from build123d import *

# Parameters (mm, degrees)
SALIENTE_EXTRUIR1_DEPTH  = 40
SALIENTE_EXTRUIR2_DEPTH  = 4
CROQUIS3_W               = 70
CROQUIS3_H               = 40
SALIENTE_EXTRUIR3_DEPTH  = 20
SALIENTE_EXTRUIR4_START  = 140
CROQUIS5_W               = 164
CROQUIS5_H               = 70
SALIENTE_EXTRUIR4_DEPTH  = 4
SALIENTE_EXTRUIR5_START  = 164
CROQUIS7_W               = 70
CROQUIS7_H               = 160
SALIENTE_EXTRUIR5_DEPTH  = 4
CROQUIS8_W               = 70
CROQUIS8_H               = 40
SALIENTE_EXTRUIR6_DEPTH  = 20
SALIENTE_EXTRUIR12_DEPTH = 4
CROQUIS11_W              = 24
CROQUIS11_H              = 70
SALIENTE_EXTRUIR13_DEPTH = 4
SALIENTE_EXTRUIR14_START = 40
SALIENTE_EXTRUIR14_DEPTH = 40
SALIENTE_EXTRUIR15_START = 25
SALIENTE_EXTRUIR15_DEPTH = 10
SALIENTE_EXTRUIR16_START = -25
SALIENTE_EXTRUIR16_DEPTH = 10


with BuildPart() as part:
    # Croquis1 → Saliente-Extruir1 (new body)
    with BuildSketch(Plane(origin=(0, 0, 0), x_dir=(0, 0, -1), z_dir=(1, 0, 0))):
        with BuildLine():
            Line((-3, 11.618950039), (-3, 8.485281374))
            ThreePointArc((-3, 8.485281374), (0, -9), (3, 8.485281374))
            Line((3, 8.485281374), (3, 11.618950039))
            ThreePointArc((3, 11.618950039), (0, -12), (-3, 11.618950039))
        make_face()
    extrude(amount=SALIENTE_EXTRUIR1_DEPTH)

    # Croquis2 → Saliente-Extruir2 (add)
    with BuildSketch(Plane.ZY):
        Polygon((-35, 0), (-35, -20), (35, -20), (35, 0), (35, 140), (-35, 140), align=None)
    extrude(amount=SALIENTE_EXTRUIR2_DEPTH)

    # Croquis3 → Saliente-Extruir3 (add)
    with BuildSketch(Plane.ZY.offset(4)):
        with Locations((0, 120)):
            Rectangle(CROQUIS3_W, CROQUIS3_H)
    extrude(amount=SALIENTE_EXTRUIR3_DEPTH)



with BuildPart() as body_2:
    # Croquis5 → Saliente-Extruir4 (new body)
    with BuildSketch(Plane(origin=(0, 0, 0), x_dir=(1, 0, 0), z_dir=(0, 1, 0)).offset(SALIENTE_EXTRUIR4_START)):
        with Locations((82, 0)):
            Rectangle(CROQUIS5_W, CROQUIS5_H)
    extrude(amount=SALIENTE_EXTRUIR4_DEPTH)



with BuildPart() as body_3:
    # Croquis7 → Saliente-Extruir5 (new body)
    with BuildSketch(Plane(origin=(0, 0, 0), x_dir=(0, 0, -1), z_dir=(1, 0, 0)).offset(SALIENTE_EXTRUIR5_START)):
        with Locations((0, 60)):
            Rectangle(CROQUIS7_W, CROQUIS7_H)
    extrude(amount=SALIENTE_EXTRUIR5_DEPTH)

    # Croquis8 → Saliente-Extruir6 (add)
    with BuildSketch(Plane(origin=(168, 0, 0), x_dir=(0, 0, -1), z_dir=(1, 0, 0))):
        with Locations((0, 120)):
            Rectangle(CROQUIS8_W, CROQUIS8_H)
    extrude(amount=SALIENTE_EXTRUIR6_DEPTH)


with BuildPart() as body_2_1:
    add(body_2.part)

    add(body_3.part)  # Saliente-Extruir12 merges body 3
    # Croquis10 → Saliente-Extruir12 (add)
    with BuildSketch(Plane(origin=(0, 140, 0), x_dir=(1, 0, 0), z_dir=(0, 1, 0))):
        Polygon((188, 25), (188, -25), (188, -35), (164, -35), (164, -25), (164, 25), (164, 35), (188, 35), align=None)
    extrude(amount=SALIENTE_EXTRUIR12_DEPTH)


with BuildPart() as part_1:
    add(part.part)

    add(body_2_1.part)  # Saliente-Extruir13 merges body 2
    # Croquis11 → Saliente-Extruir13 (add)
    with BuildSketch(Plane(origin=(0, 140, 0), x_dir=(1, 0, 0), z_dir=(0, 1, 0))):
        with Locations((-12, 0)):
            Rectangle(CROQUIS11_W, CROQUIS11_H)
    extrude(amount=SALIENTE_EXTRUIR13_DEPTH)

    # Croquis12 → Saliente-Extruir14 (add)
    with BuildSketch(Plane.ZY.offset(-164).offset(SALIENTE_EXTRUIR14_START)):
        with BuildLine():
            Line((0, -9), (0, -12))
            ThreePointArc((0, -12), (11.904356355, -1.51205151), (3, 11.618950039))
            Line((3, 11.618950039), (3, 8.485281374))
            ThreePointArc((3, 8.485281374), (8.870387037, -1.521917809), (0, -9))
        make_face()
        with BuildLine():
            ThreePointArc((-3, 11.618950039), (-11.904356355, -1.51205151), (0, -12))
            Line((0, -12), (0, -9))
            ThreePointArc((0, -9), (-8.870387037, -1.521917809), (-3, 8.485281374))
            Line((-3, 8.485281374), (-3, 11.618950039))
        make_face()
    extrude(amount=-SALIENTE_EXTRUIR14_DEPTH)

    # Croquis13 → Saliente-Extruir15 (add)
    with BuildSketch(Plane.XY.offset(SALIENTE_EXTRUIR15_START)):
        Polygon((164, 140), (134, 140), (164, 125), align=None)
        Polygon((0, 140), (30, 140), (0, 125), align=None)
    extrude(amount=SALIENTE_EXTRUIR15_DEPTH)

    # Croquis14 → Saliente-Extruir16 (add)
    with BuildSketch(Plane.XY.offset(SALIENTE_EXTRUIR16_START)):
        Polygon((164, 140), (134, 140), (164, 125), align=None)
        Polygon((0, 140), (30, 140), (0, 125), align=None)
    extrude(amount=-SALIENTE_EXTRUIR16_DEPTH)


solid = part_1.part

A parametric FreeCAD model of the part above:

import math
import FreeCAD as App
import Part
import Sketcher

V = App.Vector
Q = App.Units.Quantity

doc = App.newDocument("Part")
body = doc.addObject("PartDesign::Body", "Body")

# Sketch on YZ plane
sketch1 = body.newObject("Sketcher::SketchObject", "Sketch")
sketch1.AttachmentSupport = (doc.getObject("YZ_Plane"), [""])
sketch1.MapMode = "FlatFace"
sketch1.addGeometry([
    Part.LineSegment(V(8.5, 3, 0), V(11.6, 3, 0)),
    Part.ArcOfCircle(Part.Circle(V(0, 0, 0), V(0, 0, 1), 12), math.radians(14), math.radians(346)),
    Part.LineSegment(V(11.6, -3, 0), V(8.5, -3, 0)),
    Part.ArcOfCircle(Part.Circle(V(0, 0, 0), V(0, 0, 1), 9), math.radians(19), math.radians(341)),
], False)
sketch1.addConstraint([
    Sketcher.Constraint("Coincident", 0, 2, 1, 1),
    Sketcher.Constraint("Coincident", 1, 2, 2, 1),
    Sketcher.Constraint("Coincident", 2, 2, 3, 2),
    Sketcher.Constraint("Coincident", 3, 1, 0, 1),
    Sketcher.Constraint("Horizontal", 0),
    Sketcher.Constraint("Horizontal", 2),
    Sketcher.Constraint("Coincident", 1, 3, -1, 1),
    Sketcher.Constraint("Coincident", 3, 3, -1, 1),
    Sketcher.Constraint("Vertical", 0, 2, 1, 2),
    Sketcher.Constraint("Radius", 1, Q("12 mm")),
    Sketcher.Constraint("Radius", 3, Q("9 mm")),
    Sketcher.Constraint("DistanceY", -1, 1, 0, 2, Q("3 mm")),
])
pad1 = body.newObject("PartDesign::Pad", "Pad")
pad1.Profile = sketch1
pad1.Length = 40

# Sketch on YZ plane
sketch2 = body.newObject("Sketcher::SketchObject", "Sketch001")
sketch2.AttachmentSupport = (doc.getObject("YZ_Plane"), [""])
sketch2.MapMode = "FlatFace"
sketch2.addGeometry([
    Part.LineSegment(V(-20, -35, 0), V(-20, 35, 0)),
    Part.LineSegment(V(-20, 35, 0), V(140, 35, 0)),
    Part.LineSegment(V(140, 35, 0), V(140, -35, 0)),
    Part.LineSegment(V(140, -35, 0), V(-20, -35, 0)),
], False)
sketch2.addConstraint([
    Sketcher.Constraint("Coincident", 0, 2, 1, 1),
    Sketcher.Constraint("Coincident", 1, 2, 2, 1),
    Sketcher.Constraint("Coincident", 2, 2, 3, 1),
    Sketcher.Constraint("Coincident", 3, 2, 0, 1),
    Sketcher.Constraint("Vertical", 0),
    Sketcher.Constraint("Horizontal", 1),
    Sketcher.Constraint("Vertical", 2),
    Sketcher.Constraint("Horizontal", 3),
    Sketcher.Constraint("DistanceX", 1, 1, 1, 2, Q("160 mm")),
    Sketcher.Constraint("DistanceY", 0, 1, 0, 2, Q("70 mm")),
    Sketcher.Constraint("DistanceX", 0, 2, -1, 1, Q("20 mm")),
    Sketcher.Constraint("DistanceY", -1, 1, 0, 2, Q("35 mm")),
])
pad2 = body.newObject("PartDesign::Pad", "Pad001")
pad2.Profile = sketch2
pad2.Length = 4
pad2.Reversed = True

# Sketch on YZ plane
sketch3 = body.newObject("Sketcher::SketchObject", "Sketch002")
sketch3.AttachmentSupport = (doc.getObject("YZ_Plane"), [""])
sketch3.MapMode = "FlatFace"
sketch3.AttachmentOffset = App.Placement(V(0, 0, -4), App.Rotation())
sketch3.addGeometry([
    Part.LineSegment(V(140, -35, 0), V(100, -35, 0)),
    Part.LineSegment(V(100, -35, 0), V(100, 35, 0)),
    Part.LineSegment(V(100, 35, 0), V(140, 35, 0)),
    Part.LineSegment(V(140, 35, 0), V(140, -35, 0)),
], False)
sketch3.addConstraint([
    Sketcher.Constraint("Coincident", 0, 2, 1, 1),
    Sketcher.Constraint("Coincident", 1, 2, 2, 1),
    Sketcher.Constraint("Coincident", 2, 2, 3, 1),
    Sketcher.Constraint("Coincident", 3, 2, 0, 1),
    Sketcher.Constraint("Horizontal", 0),
    Sketcher.Constraint("Vertical", 1),
    Sketcher.Constraint("Horizontal", 2),
    Sketcher.Constraint("Vertical", 3),
    Sketcher.Constraint("DistanceX", 0, 2, 0, 1, Q("40 mm")),
    Sketcher.Constraint("DistanceY", 1, 1, 1, 2, Q("70 mm")),
    Sketcher.Constraint("DistanceX", -1, 1, 0, 2, Q("100 mm")),
    Sketcher.Constraint("DistanceY", 0, 2, -1, 1, Q("35 mm")),
])
pad3 = body.newObject("PartDesign::Pad", "Pad002")
pad3.Profile = sketch3
pad3.Length = 20
pad3.Reversed = True
body2 = doc.addObject("PartDesign::Body", "Body001")

# Sketch on XZ plane
sketch4 = body2.newObject("Sketcher::SketchObject", "Sketch003")
sketch4.AttachmentSupport = (doc.getObject("XZ_Plane001"), [""])
sketch4.MapMode = "FlatFace"
sketch4.AttachmentOffset = App.Placement(V(0, 0, -140), App.Rotation())
sketch4.addGeometry([
    Part.LineSegment(V(0, -35, 0), V(0, 35, 0)),
    Part.LineSegment(V(0, 35, 0), V(164, 35, 0)),
    Part.LineSegment(V(164, 35, 0), V(164, -35, 0)),
    Part.LineSegment(V(164, -35, 0), V(0, -35, 0)),
], False)
sketch4.addConstraint([
    Sketcher.Constraint("Coincident", 0, 2, 1, 1),
    Sketcher.Constraint("Coincident", 1, 2, 2, 1),
    Sketcher.Constraint("Coincident", 2, 2, 3, 1),
    Sketcher.Constraint("Coincident", 3, 2, 0, 1),
    Sketcher.Constraint("Vertical", 0),
    Sketcher.Constraint("Horizontal", 1),
    Sketcher.Constraint("Vertical", 2),
    Sketcher.Constraint("Horizontal", 3),
    Sketcher.Constraint("Symmetric", 0, 2, 3, 2, -1, 1),
    Sketcher.Constraint("DistanceX", 1, 1, 1, 2, Q("164 mm")),
    Sketcher.Constraint("DistanceY", 0, 1, 0, 2, Q("70 mm")),
])
pad4 = body2.newObject("PartDesign::Pad", "Pad003")
pad4.Profile = sketch4
pad4.Length = 4
pad4.Reversed = True
body3 = doc.addObject("PartDesign::Body", "Body002")

# Sketch on YZ plane
sketch5 = body3.newObject("Sketcher::SketchObject", "Sketch004")
sketch5.AttachmentSupport = (doc.getObject("YZ_Plane002"), [""])
sketch5.MapMode = "FlatFace"
sketch5.AttachmentOffset = App.Placement(V(0, 0, 164), App.Rotation())
sketch5.addGeometry([
    Part.LineSegment(V(140, 35, 0), V(-20, 35, 0)),
    Part.LineSegment(V(-20, 35, 0), V(-20, -35, 0)),
    Part.LineSegment(V(-20, -35, 0), V(140, -35, 0)),
    Part.LineSegment(V(140, -35, 0), V(140, 35, 0)),
], False)
sketch5.addConstraint([
    Sketcher.Constraint("Coincident", 0, 2, 1, 1),
    Sketcher.Constraint("Coincident", 1, 2, 2, 1),
    Sketcher.Constraint("Coincident", 2, 2, 3, 1),
    Sketcher.Constraint("Coincident", 3, 2, 0, 1),
    Sketcher.Constraint("Horizontal", 0),
    Sketcher.Constraint("Vertical", 1),
    Sketcher.Constraint("Horizontal", 2),
    Sketcher.Constraint("Vertical", 3),
    Sketcher.Constraint("DistanceX", 0, 2, 0, 1, Q("160 mm")),
    Sketcher.Constraint("DistanceY", 1, 2, 1, 1, Q("70 mm")),
    Sketcher.Constraint("DistanceX", 0, 2, -1, 1, Q("20 mm")),
    Sketcher.Constraint("DistanceY", -1, 1, 0, 2, Q("35 mm")),
])
pad5 = body3.newObject("PartDesign::Pad", "Pad004")
pad5.Profile = sketch5
pad5.Length = 4

# Sketch on YZ plane
sketch6 = body3.newObject("Sketcher::SketchObject", "Sketch005")
sketch6.AttachmentSupport = (doc.getObject("YZ_Plane002"), [""])
sketch6.MapMode = "FlatFace"
sketch6.AttachmentOffset = App.Placement(V(0, 0, 168), App.Rotation())
sketch6.addGeometry([
    Part.LineSegment(V(140, 35, 0), V(100, 35, 0)),
    Part.LineSegment(V(100, 35, 0), V(100, -35, 0)),
    Part.LineSegment(V(100, -35, 0), V(140, -35, 0)),
    Part.LineSegment(V(140, -35, 0), V(140, 35, 0)),
], False)
sketch6.addConstraint([
    Sketcher.Constraint("Coincident", 0, 2, 1, 1),
    Sketcher.Constraint("Coincident", 1, 2, 2, 1),
    Sketcher.Constraint("Coincident", 2, 2, 3, 1),
    Sketcher.Constraint("Coincident", 3, 2, 0, 1),
    Sketcher.Constraint("Horizontal", 0),
    Sketcher.Constraint("Vertical", 1),
    Sketcher.Constraint("Horizontal", 2),
    Sketcher.Constraint("Vertical", 3),
    Sketcher.Constraint("DistanceX", 0, 2, 0, 1, Q("40 mm")),
    Sketcher.Constraint("DistanceY", 1, 2, 1, 1, Q("70 mm")),
    Sketcher.Constraint("DistanceX", -1, 1, 0, 2, Q("100 mm")),
    Sketcher.Constraint("DistanceY", -1, 1, 0, 2, Q("35 mm")),
])
pad6 = body3.newObject("PartDesign::Pad", "Pad005")
pad6.Profile = sketch6
pad6.Length = 20
body2.AllowCompound = True
doc.recompute()

boolean = body2.newObject("PartDesign::Boolean", "Boolean")
boolean.Type = "Fuse"
boolean.addObjects([body3])

# Sketch on XZ plane
sketch7 = body2.newObject("Sketcher::SketchObject", "Sketch006")
sketch7.AttachmentSupport = (doc.getObject("XZ_Plane001"), [""])
sketch7.MapMode = "FlatFace"
sketch7.AttachmentOffset = App.Placement(V(0, 0, -140), App.Rotation())
sketch7.addGeometry([
    Part.LineSegment(V(188, 35, 0), V(188, -35, 0)),
    Part.LineSegment(V(188, -35, 0), V(164, -35, 0)),
    Part.LineSegment(V(164, -35, 0), V(164, 35, 0)),
    Part.LineSegment(V(164, 35, 0), V(188, 35, 0)),
], False)
sketch7.addConstraint([
    Sketcher.Constraint("Coincident", 0, 2, 1, 1),
    Sketcher.Constraint("Coincident", 1, 2, 2, 1),
    Sketcher.Constraint("Coincident", 2, 2, 3, 1),
    Sketcher.Constraint("Coincident", 3, 2, 0, 1),
    Sketcher.Constraint("Vertical", 0),
    Sketcher.Constraint("Horizontal", 1),
    Sketcher.Constraint("Vertical", 2),
    Sketcher.Constraint("Horizontal", 3),
    Sketcher.Constraint("DistanceX", 1, 2, 1, 1, Q("24 mm")),
    Sketcher.Constraint("DistanceY", 0, 2, 0, 1, Q("70 mm")),
    Sketcher.Constraint("DistanceX", -1, 1, 0, 2, Q("188 mm")),
    Sketcher.Constraint("DistanceY", 0, 2, -1, 1, Q("35 mm")),
])
pad7 = body2.newObject("PartDesign::Pad", "Pad006")
pad7.Profile = sketch7
pad7.Length = 4
pad7.Reversed = True
body.AllowCompound = True
doc.recompute()

boolean2 = body.newObject("PartDesign::Boolean", "Boolean001")
boolean2.Type = "Fuse"
boolean2.addObjects([body2])

# Sketch on XZ plane
sketch8 = body.newObject("Sketcher::SketchObject", "Sketch007")
sketch8.AttachmentSupport = (doc.getObject("XZ_Plane"), [""])
sketch8.MapMode = "FlatFace"
sketch8.AttachmentOffset = App.Placement(V(0, 0, -140), App.Rotation())
sketch8.addGeometry([
    Part.LineSegment(V(-24, -35, 0), V(-24, 35, 0)),
    Part.LineSegment(V(-24, 35, 0), V(0, 35, 0)),
    Part.LineSegment(V(0, 35, 0), V(0, -35, 0)),
    Part.LineSegment(V(0, -35, 0), V(-24, -35, 0)),
], False)
sketch8.addConstraint([
    Sketcher.Constraint("Coincident", 0, 2, 1, 1),
    Sketcher.Constraint("Coincident", 1, 2, 2, 1),
    Sketcher.Constraint("Coincident", 2, 2, 3, 1),
    Sketcher.Constraint("Coincident", 3, 2, 0, 1),
    Sketcher.Constraint("Vertical", 0),
    Sketcher.Constraint("Horizontal", 1),
    Sketcher.Constraint("Vertical", 2),
    Sketcher.Constraint("Horizontal", 3),
    Sketcher.Constraint("Symmetric", 1, 2, 2, 2, -1, 1),
    Sketcher.Constraint("DistanceX", 1, 1, 1, 2, Q("24 mm")),
    Sketcher.Constraint("DistanceY", 0, 1, 0, 2, Q("70 mm")),
])
pad8 = body.newObject("PartDesign::Pad", "Pad007")
pad8.Profile = sketch8
pad8.Length = 4
pad8.Reversed = True

# Sketch on YZ plane
sketch9 = body.newObject("Sketcher::SketchObject", "Sketch008")
sketch9.AttachmentSupport = (doc.getObject("YZ_Plane"), [""])
sketch9.MapMode = "FlatFace"
sketch9.AttachmentOffset = App.Placement(V(0, 0, 124), App.Rotation())
sketch9.addGeometry([
    Part.ArcOfCircle(Part.Circle(V(0, 0, 0), V(0, 0, 1), 12), math.radians(14), math.radians(180)),  # 0
    Part.LineSegment(V(11.6, 3, 0), V(8.5, 3, 0)),  # 1
    Part.ArcOfCircle(Part.Circle(V(0, 0, 0), V(0, 0, 1), 9), math.radians(19), math.radians(180)),  # 2
    Part.ArcOfCircle(Part.Circle(V(0, 0, 0), V(0, 0, 1), 9), math.radians(180), math.radians(341)),  # 3
    Part.LineSegment(V(8.5, -3, 0), V(11.6, -3, 0)),  # 4
    Part.ArcOfCircle(Part.Circle(V(0, 0, 0), V(0, 0, 1), 12), math.radians(180), math.radians(346)),  # 5
], False)
sketch9.addConstraint([
    Sketcher.Constraint("Coincident", 0, 1, 1, 1),
    Sketcher.Constraint("Coincident", 1, 2, 2, 1),
    Sketcher.Constraint("Tangent", 2, 2, 3, 1),
    Sketcher.Constraint("Coincident", 3, 2, 4, 1),
    Sketcher.Constraint("Coincident", 4, 2, 5, 2),
    Sketcher.Constraint("Tangent", 5, 1, 0, 2),
    Sketcher.Constraint("Horizontal", 1),
    Sketcher.Constraint("Horizontal", 4),
    Sketcher.Constraint("Coincident", 0, 3, -1, 1),
    Sketcher.Constraint("Coincident", 2, 3, -1, 1),
    Sketcher.Constraint("Equal", 2, 3),
    Sketcher.Constraint("Equal", 0, 5),
    Sketcher.Constraint("PointOnObject", 2, 2, -1),
    Sketcher.Constraint("PointOnObject", 5, 1, -1),
    Sketcher.Constraint("Vertical", 1, 2, 3, 2),
    Sketcher.Constraint("Radius", 0, Q("12 mm")),
    Sketcher.Constraint("Radius", 2, Q("9 mm")),
    Sketcher.Constraint("DistanceY", -1, 1, 0, 1, Q("3 mm")),
])
pad9 = body.newObject("PartDesign::Pad", "Pad008")
pad9.Profile = sketch9
pad9.Length = 40

# Sketch on XY plane
sketch10 = body.newObject("Sketcher::SketchObject", "Sketch009")
sketch10.AttachmentSupport = (doc.getObject("XY_Plane"), [""])
sketch10.MapMode = "FlatFace"
sketch10.AttachmentOffset = App.Placement(V(0, 0, 25), App.Rotation())
sketch10.addGeometry([
    Part.LineSegment(V(164, 140, 0), V(134, 140, 0)),  # 0
    Part.LineSegment(V(134, 140, 0), V(164, 125, 0)),  # 1
    Part.LineSegment(V(164, 125, 0), V(164, 140, 0)),  # 2
    Part.LineSegment(V(30, 140, 0), V(0, 140, 0)),  # 3
    Part.LineSegment(V(0, 140, 0), V(0, 125, 0)),  # 4
    Part.LineSegment(V(0, 125, 0), V(30, 140, 0)),  # 5
], False)
sketch10.addConstraint([
    Sketcher.Constraint("Coincident", 0, 2, 1, 1),
    Sketcher.Constraint("Coincident", 1, 2, 2, 1),
    Sketcher.Constraint("Coincident", 2, 2, 0, 1),
    Sketcher.Constraint("Coincident", 3, 2, 4, 1),
    Sketcher.Constraint("Coincident", 4, 2, 5, 1),
    Sketcher.Constraint("Coincident", 5, 2, 3, 1),
    Sketcher.Constraint("Horizontal", 0),
    Sketcher.Constraint("Vertical", 2),
    Sketcher.Constraint("Horizontal", 3),
    Sketcher.Constraint("Vertical", 4),
    Sketcher.Constraint("PointOnObject", 3, 2, -2),
    Sketcher.Constraint("Horizontal", 2, 2, 3, 2),
    Sketcher.Constraint("Horizontal", 1, 2, 4, 2),
    Sketcher.Constraint("Equal", 0, 3),
    Sketcher.Constraint("DistanceX", 0, 2, 0, 1, Q("30 mm")),
    Sketcher.Constraint("DistanceY", 2, 1, 2, 2, Q("15 mm")),
    Sketcher.Constraint("DistanceX", -1, 1, 0, 2, Q("134 mm")),
    Sketcher.Constraint("DistanceY", -1, 1, 0, 2, Q("140 mm")),
])
pad10 = body.newObject("PartDesign::Pad", "Pad009")
pad10.Profile = sketch10
pad10.Length = 10

# Sketch on XY plane
sketch11 = body.newObject("Sketcher::SketchObject", "Sketch010")
sketch11.AttachmentSupport = (doc.getObject("XY_Plane"), [""])
sketch11.MapMode = "FlatFace"
sketch11.AttachmentOffset = App.Placement(V(0, 0, -25), App.Rotation())
sketch11.addGeometry([
    Part.LineSegment(V(164, 140, 0), V(134, 140, 0)),  # 0
    Part.LineSegment(V(134, 140, 0), V(164, 125, 0)),  # 1
    Part.LineSegment(V(164, 125, 0), V(164, 140, 0)),  # 2
    Part.LineSegment(V(30, 140, 0), V(0, 140, 0)),  # 3
    Part.LineSegment(V(0, 140, 0), V(0, 125, 0)),  # 4
    Part.LineSegment(V(0, 125, 0), V(30, 140, 0)),  # 5
], False)
sketch11.addConstraint([
    Sketcher.Constraint("Coincident", 0, 2, 1, 1),
    Sketcher.Constraint("Coincident", 1, 2, 2, 1),
    Sketcher.Constraint("Coincident", 2, 2, 0, 1),
    Sketcher.Constraint("Coincident", 3, 2, 4, 1),
    Sketcher.Constraint("Coincident", 4, 2, 5, 1),
    Sketcher.Constraint("Coincident", 5, 2, 3, 1),
    Sketcher.Constraint("Horizontal", 0),
    Sketcher.Constraint("Vertical", 2),
    Sketcher.Constraint("Horizontal", 3),
    Sketcher.Constraint("Vertical", 4),
    Sketcher.Constraint("PointOnObject", 3, 2, -2),
    Sketcher.Constraint("Horizontal", 2, 2, 3, 2),
    Sketcher.Constraint("Horizontal", 1, 2, 4, 2),
    Sketcher.Constraint("Equal", 0, 3),
    Sketcher.Constraint("DistanceX", 0, 2, 0, 1, Q("30 mm")),
    Sketcher.Constraint("DistanceY", 2, 1, 2, 2, Q("15 mm")),
    Sketcher.Constraint("DistanceX", -1, 1, 0, 2, Q("134 mm")),
    Sketcher.Constraint("DistanceY", -1, 1, 0, 2, Q("140 mm")),
])
pad11 = body.newObject("PartDesign::Pad", "Pad010")
pad11.Profile = sketch11
pad11.Length = 10
pad11.Reversed = True

doc.recompute()
